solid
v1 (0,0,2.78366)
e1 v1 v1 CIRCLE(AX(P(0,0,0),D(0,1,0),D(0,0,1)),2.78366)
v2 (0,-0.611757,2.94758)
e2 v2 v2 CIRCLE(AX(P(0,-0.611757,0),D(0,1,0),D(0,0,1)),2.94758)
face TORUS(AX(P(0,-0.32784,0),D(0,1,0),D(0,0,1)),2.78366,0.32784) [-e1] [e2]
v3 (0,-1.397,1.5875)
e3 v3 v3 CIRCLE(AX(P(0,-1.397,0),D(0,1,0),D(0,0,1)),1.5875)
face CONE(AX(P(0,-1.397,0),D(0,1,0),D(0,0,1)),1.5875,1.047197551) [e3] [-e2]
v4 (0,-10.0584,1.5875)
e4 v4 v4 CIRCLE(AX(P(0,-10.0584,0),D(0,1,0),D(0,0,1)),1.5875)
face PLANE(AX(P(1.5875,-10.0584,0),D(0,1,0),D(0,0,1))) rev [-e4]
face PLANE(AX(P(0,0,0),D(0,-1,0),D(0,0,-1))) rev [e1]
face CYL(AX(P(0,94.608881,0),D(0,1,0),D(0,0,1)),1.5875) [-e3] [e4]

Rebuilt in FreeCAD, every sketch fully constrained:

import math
import FreeCAD as App
import Part
import Sketcher

V = App.Vector
Q = App.Units.Quantity

doc = App.newDocument("Part")
body = doc.addObject("PartDesign::Body", "Body")

# Sketch on XY plane
sketch1 = doc.addObject("Sketcher::SketchObject", "Sketch")
body.addObject(sketch1)
sketch1.AttachmentSupport = (doc.XY_Plane, [""])
sketch1.MapMode = "FlatFace"
sketch1.addGeometry(Part.LineSegment(V(1.59, -10.06, 0), V(1.59, -1.4, 0)), False)
sketch1.addGeometry(Part.LineSegment(V(1.59, -1.4, 0), V(2.95, -0.61, 0)), False)
sketch1.addGeometry(Part.ArcOfCircle(Part.Circle(V(2.78, -0.33, 0), V(0, 0, 1), 0.33), math.radians(-60), math.radians(90)), False)
sketch1.addGeometry(Part.LineSegment(V(2.78, 0, 0), V(0, 0, 0)), False)
sketch1.addGeometry(Part.LineSegment(V(0, 0, 0), V(0, -10.06, 0)), False)
sketch1.addGeometry(Part.LineSegment(V(0, -10.06, 0), V(1.59, -10.06, 0)), False)
sketch1.addConstraint(Sketcher.Constraint("Coincident", 0, 2, 1, 1))
sketch1.addConstraint(Sketcher.Constraint("Tangent", 1, 2, 2, 1))
sketch1.addConstraint(Sketcher.Constraint("Tangent", 2, 2, 3, 1))
sketch1.addConstraint(Sketcher.Constraint("Coincident", 3, 2, 4, 1))
sketch1.addConstraint(Sketcher.Constraint("Coincident", 4, 2, 5, 1))
sketch1.addConstraint(Sketcher.Constraint("Coincident", 5, 2, 0, 1))
sketch1.addConstraint(Sketcher.Constraint("Vertical", 0))
sketch1.addConstraint(Sketcher.Constraint("Horizontal", 3))
sketch1.addConstraint(Sketcher.Constraint("Vertical", 4))
sketch1.addConstraint(Sketcher.Constraint("Horizontal", 5))
sketch1.addConstraint(Sketcher.Constraint("Coincident", 3, 2, -1, 1))
sketch1.addConstraint(Sketcher.Constraint("Angle", 1, Q("30 deg")))
sketch1.addConstraint(Sketcher.Constraint("DistanceX", 5, 1, 5, 2, Q("0.0625 in")))
sketch1.addConstraint(Sketcher.Constraint("DistanceY", 0, 1, 0, 2, Q("0.341 in")))
sketch1.addConstraint(Sketcher.Constraint("DistanceY", 4, 2, 4, 1, Q("0.396 in")))
sketch1.addConstraint(Sketcher.Constraint("Radius", 2, Q("0.32784 mm")))
revolution = doc.addObject("PartDesign::Revolution", "Revolution")
body.addObject(revolution)
revolution.Profile = sketch1
revolution.ReferenceAxis = (sketch1, ["V_Axis"])
revolution.Angle = 360

doc.recompute()
